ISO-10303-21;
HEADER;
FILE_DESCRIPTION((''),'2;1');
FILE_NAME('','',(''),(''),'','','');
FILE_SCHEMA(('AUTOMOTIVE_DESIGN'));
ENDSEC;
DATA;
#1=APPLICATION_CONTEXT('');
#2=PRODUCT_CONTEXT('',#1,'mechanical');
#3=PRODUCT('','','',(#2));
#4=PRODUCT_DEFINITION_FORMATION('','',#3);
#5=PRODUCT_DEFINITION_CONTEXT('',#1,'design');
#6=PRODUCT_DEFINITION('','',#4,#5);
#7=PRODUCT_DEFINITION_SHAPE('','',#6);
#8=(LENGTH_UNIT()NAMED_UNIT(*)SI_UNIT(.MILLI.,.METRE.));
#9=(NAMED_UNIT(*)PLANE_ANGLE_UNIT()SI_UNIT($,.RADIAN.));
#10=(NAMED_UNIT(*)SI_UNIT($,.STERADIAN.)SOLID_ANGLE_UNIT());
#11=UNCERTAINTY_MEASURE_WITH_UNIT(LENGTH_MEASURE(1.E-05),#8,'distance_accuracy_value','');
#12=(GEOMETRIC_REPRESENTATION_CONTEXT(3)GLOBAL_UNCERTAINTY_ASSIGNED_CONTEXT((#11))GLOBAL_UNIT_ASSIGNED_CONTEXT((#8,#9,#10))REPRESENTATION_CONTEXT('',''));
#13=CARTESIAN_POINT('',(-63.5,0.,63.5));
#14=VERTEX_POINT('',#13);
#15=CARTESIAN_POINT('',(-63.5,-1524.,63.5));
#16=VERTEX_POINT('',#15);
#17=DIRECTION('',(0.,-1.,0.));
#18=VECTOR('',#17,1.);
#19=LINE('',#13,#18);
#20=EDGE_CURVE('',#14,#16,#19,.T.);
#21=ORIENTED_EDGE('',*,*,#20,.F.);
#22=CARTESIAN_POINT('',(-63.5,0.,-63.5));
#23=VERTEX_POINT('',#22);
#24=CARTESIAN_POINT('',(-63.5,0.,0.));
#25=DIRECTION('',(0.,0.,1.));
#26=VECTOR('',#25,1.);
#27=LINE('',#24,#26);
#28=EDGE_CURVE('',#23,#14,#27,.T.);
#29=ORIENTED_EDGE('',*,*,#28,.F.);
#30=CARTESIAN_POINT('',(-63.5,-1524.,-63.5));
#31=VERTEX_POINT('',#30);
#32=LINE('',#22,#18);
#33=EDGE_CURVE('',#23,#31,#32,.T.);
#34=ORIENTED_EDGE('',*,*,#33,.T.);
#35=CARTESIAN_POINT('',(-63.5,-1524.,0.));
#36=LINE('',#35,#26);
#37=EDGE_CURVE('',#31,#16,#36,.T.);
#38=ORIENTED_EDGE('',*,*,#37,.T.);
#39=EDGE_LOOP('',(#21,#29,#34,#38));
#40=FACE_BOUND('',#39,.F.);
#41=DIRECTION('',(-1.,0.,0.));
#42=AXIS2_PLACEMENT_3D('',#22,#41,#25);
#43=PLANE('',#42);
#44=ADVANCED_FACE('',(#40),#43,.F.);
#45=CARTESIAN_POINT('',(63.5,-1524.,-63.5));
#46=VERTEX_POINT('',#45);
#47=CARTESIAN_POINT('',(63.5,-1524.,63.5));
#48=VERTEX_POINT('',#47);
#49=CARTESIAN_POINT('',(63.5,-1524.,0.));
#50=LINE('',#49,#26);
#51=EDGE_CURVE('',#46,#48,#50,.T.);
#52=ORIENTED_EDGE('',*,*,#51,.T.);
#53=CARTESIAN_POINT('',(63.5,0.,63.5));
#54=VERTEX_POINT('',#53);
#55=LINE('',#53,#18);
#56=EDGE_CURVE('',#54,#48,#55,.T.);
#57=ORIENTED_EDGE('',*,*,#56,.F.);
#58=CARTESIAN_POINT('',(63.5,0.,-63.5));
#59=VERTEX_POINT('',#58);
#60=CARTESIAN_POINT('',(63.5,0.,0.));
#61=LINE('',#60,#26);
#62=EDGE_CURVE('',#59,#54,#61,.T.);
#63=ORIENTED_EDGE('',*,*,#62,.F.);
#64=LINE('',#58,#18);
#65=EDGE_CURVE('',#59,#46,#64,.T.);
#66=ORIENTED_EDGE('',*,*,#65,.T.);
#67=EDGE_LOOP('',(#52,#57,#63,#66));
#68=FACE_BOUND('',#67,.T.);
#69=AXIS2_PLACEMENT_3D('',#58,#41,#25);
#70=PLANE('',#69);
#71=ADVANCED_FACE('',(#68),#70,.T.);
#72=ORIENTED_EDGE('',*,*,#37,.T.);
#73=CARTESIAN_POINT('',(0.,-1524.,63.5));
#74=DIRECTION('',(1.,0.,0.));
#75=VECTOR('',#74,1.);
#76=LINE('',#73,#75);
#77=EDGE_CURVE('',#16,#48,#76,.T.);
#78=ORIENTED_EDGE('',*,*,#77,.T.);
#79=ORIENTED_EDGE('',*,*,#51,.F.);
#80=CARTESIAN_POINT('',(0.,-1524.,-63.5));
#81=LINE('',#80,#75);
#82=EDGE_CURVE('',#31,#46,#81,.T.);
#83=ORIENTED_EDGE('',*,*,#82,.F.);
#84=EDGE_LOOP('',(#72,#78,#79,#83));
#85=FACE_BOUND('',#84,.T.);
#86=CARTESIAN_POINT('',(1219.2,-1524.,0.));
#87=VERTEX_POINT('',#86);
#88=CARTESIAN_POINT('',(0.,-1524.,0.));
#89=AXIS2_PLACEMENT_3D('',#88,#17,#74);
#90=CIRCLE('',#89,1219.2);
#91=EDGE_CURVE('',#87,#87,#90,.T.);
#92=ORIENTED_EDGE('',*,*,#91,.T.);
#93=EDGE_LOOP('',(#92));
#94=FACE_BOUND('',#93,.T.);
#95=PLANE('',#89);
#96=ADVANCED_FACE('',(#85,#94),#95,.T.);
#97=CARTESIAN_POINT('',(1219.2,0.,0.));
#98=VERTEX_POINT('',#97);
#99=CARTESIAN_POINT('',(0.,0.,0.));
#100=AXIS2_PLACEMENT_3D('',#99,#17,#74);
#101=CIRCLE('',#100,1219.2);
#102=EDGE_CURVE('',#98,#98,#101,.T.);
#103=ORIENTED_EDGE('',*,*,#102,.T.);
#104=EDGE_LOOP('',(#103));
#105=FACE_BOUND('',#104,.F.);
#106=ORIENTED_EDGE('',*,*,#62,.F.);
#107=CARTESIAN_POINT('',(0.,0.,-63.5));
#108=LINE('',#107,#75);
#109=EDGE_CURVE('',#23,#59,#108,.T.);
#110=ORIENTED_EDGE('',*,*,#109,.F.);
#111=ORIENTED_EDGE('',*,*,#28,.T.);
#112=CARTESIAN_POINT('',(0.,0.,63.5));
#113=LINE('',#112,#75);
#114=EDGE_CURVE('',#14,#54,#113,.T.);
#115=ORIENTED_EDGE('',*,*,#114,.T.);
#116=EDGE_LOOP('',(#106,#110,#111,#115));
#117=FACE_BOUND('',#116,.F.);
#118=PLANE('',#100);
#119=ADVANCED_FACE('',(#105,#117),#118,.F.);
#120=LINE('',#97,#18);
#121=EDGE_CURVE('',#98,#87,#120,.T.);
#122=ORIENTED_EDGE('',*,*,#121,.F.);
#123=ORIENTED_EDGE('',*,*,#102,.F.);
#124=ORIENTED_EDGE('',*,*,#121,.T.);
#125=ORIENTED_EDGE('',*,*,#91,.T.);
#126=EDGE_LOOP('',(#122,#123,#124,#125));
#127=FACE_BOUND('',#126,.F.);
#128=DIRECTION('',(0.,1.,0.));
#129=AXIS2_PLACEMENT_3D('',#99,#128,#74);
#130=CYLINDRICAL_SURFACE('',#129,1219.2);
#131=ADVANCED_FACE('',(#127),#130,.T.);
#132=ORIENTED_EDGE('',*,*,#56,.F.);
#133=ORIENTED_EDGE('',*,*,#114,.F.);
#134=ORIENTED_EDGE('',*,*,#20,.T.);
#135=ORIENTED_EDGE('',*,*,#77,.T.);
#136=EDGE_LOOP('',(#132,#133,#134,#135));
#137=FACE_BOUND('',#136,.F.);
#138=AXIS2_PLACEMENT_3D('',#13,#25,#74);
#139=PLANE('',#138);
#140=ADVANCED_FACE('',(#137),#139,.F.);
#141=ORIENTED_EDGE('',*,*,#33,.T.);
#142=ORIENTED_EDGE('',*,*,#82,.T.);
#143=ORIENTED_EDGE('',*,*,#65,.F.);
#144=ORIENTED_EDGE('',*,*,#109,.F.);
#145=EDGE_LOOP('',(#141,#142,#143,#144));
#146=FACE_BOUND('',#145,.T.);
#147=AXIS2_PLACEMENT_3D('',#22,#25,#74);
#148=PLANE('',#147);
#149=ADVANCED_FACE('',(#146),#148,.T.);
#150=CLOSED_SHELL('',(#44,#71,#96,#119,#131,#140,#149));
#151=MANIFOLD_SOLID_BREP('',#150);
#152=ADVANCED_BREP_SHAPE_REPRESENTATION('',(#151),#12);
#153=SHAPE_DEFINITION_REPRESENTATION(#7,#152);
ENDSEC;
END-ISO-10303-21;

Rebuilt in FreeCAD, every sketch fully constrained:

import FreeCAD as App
import Part
import Sketcher

V = App.Vector
Q = App.Units.Quantity

doc = App.newDocument("Part")
body = doc.addObject("PartDesign::Body", "Body")

# Sketch on XZ plane
sketch1 = doc.addObject("Sketcher::SketchObject", "Sketch")
body.addObject(sketch1)
sketch1.AttachmentSupport = (doc.XZ_Plane, [""])
sketch1.MapMode = "FlatFace"
sketch1.addGeometry(Part.Circle(V(0, 0, 0), V(0, 0, 1), 1219), False)
sketch1.addGeometry(Part.LineSegment(V(64, -64, 0), V(-64, -64, 0)), False)
sketch1.addGeometry(Part.LineSegment(V(-64, -64, 0), V(-64, 64, 0)), False)
sketch1.addGeometry(Part.LineSegment(V(-64, 64, 0), V(64, 64, 0)), False)
sketch1.addGeometry(Part.LineSegment(V(64, 64, 0), V(64, -64, 0)), False)
sketch1.addConstraint(Sketcher.Constraint("Coincident", 1, 2, 2, 1))
sketch1.addConstraint(Sketcher.Constraint("Coincident", 2, 2, 3, 1))
sketch1.addConstraint(Sketcher.Constraint("Coincident", 3, 2, 4, 1))
sketch1.addConstraint(Sketcher.Constraint("Coincident", 4, 2, 1, 1))
sketch1.addConstraint(Sketcher.Constraint("Horizontal", 1))
sketch1.addConstraint(Sketcher.Constraint("Vertical", 2))
sketch1.addConstraint(Sketcher.Constraint("Horizontal", 3))
sketch1.addConstraint(Sketcher.Constraint("Vertical", 4))
sketch1.addConstraint(Sketcher.Constraint("Coincident", 0, 3, -1, 1))
sketch1.addConstraint(Sketcher.Constraint("Symmetric", 1, 2, 3, 2, -1, 1))
sketch1.addConstraint(Sketcher.Constraint("Equal", 3, 2))
sketch1.addConstraint(Sketcher.Constraint("Diameter", 0, Q("96 in")))
sketch1.addConstraint(Sketcher.Constraint("DistanceX", 1, 2, 1, 1, Q("5 in")))
pad1 = doc.addObject("PartDesign::Pad", "Pad")
body.addObject(pad1)
pad1.Profile = sketch1
pad1.Length = Q("60 in")

doc.recompute()
